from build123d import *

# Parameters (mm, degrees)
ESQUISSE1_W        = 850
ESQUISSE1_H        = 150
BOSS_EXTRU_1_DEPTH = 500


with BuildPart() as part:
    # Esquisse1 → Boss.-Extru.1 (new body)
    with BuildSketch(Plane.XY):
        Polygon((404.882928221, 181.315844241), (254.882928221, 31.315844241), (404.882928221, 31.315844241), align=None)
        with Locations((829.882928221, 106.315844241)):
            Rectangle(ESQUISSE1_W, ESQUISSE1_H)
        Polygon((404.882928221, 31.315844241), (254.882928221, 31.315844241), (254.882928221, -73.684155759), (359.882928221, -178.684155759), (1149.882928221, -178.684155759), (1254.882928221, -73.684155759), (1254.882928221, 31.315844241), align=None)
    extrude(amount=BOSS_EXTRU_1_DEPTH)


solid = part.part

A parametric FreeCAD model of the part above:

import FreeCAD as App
import Part
import Sketcher

V = App.Vector
Q = App.Units.Quantity

doc = App.newDocument("Part")
body = doc.addObject("PartDesign::Body", "Body")

# Sketch on XY plane
sketch1 = body.newObject("Sketcher::SketchObject", "Sketch")
sketch1.AttachmentSupport = (doc.getObject("XY_Plane"), [""])
sketch1.MapMode = "FlatFace"
sketch1.addGeometry(Part.LineSegment(V(405, 181, 0), V(255, 31, 0)), False)
sketch1.addGeometry(Part.LineSegment(V(255, 31, 0), V(255, -74, 0)), False)
sketch1.addGeometry(Part.LineSegment(V(255, -74, 0), V(360, -179, 0)), False)
sketch1.addGeometry(Part.LineSegment(V(360, -179, 0), V(1150, -179, 0)), False)
sketch1.addGeometry(Part.LineSegment(V(1150, -179, 0), V(1255, -74, 0)), False)
sketch1.addGeometry(Part.LineSegment(V(1255, -74, 0), V(1255, 181, 0)), False)
sketch1.addGeometry(Part.LineSegment(V(1255, 181, 0), V(405, 181, 0)), False)
sketch1.addConstraint(Sketcher.Constraint("Coincident", 0, 2, 1, 1))
sketch1.addConstraint(Sketcher.Constraint("Coincident", 1, 2, 2, 1))
sketch1.addConstraint(Sketcher.Constraint("Coincident", 2, 2, 3, 1))
sketch1.addConstraint(Sketcher.Constraint("Coincident", 3, 2, 4, 1))
sketch1.addConstraint(Sketcher.Constraint("Coincident", 4, 2, 5, 1))
sketch1.addConstraint(Sketcher.Constraint("Coincident", 5, 2, 6, 1))
sketch1.addConstraint(Sketcher.Constraint("Coincident", 6, 2, 0, 1))
sketch1.addConstraint(Sketcher.Constraint("Vertical", 1))
sketch1.addConstraint(Sketcher.Constraint("Horizontal", 3))
sketch1.addConstraint(Sketcher.Constraint("Vertical", 5))
sketch1.addConstraint(Sketcher.Constraint("Horizontal", 6))
sketch1.addConstraint(Sketcher.Constraint("Perpendicular", 0, 2))
sketch1.addConstraint(Sketcher.Constraint("Perpendicular", 2, 4))
sketch1.addConstraint(Sketcher.Constraint("Horizontal", 1, 2, 4, 2))
sketch1.addConstraint(Sketcher.Constraint("Equal", 2, 4))
sketch1.addConstraint(Sketcher.Constraint("DistanceX", 3, 1, 3, 2, Q("790 mm")))
sketch1.addConstraint(Sketcher.Constraint("DistanceX", 6, 2, 6, 1, Q("850 mm")))
sketch1.addConstraint(Sketcher.Constraint("DistanceY", 1, 2, 1, 1, Q("105 mm")))
sketch1.addConstraint(Sketcher.Constraint("DistanceY", 5, 1, 5, 2, Q("255 mm")))
sketch1.addConstraint(Sketcher.Constraint("DistanceX", -1, 1, 0, 2, Q("254.882928 mm")))
sketch1.addConstraint(Sketcher.Constraint("DistanceY", -1, 1, 0, 2, Q("31.315844 mm")))
pad1 = body.newObject("PartDesign::Pad", "Pad")
pad1.Profile = sketch1
pad1.Length = 500

doc.recompute()
